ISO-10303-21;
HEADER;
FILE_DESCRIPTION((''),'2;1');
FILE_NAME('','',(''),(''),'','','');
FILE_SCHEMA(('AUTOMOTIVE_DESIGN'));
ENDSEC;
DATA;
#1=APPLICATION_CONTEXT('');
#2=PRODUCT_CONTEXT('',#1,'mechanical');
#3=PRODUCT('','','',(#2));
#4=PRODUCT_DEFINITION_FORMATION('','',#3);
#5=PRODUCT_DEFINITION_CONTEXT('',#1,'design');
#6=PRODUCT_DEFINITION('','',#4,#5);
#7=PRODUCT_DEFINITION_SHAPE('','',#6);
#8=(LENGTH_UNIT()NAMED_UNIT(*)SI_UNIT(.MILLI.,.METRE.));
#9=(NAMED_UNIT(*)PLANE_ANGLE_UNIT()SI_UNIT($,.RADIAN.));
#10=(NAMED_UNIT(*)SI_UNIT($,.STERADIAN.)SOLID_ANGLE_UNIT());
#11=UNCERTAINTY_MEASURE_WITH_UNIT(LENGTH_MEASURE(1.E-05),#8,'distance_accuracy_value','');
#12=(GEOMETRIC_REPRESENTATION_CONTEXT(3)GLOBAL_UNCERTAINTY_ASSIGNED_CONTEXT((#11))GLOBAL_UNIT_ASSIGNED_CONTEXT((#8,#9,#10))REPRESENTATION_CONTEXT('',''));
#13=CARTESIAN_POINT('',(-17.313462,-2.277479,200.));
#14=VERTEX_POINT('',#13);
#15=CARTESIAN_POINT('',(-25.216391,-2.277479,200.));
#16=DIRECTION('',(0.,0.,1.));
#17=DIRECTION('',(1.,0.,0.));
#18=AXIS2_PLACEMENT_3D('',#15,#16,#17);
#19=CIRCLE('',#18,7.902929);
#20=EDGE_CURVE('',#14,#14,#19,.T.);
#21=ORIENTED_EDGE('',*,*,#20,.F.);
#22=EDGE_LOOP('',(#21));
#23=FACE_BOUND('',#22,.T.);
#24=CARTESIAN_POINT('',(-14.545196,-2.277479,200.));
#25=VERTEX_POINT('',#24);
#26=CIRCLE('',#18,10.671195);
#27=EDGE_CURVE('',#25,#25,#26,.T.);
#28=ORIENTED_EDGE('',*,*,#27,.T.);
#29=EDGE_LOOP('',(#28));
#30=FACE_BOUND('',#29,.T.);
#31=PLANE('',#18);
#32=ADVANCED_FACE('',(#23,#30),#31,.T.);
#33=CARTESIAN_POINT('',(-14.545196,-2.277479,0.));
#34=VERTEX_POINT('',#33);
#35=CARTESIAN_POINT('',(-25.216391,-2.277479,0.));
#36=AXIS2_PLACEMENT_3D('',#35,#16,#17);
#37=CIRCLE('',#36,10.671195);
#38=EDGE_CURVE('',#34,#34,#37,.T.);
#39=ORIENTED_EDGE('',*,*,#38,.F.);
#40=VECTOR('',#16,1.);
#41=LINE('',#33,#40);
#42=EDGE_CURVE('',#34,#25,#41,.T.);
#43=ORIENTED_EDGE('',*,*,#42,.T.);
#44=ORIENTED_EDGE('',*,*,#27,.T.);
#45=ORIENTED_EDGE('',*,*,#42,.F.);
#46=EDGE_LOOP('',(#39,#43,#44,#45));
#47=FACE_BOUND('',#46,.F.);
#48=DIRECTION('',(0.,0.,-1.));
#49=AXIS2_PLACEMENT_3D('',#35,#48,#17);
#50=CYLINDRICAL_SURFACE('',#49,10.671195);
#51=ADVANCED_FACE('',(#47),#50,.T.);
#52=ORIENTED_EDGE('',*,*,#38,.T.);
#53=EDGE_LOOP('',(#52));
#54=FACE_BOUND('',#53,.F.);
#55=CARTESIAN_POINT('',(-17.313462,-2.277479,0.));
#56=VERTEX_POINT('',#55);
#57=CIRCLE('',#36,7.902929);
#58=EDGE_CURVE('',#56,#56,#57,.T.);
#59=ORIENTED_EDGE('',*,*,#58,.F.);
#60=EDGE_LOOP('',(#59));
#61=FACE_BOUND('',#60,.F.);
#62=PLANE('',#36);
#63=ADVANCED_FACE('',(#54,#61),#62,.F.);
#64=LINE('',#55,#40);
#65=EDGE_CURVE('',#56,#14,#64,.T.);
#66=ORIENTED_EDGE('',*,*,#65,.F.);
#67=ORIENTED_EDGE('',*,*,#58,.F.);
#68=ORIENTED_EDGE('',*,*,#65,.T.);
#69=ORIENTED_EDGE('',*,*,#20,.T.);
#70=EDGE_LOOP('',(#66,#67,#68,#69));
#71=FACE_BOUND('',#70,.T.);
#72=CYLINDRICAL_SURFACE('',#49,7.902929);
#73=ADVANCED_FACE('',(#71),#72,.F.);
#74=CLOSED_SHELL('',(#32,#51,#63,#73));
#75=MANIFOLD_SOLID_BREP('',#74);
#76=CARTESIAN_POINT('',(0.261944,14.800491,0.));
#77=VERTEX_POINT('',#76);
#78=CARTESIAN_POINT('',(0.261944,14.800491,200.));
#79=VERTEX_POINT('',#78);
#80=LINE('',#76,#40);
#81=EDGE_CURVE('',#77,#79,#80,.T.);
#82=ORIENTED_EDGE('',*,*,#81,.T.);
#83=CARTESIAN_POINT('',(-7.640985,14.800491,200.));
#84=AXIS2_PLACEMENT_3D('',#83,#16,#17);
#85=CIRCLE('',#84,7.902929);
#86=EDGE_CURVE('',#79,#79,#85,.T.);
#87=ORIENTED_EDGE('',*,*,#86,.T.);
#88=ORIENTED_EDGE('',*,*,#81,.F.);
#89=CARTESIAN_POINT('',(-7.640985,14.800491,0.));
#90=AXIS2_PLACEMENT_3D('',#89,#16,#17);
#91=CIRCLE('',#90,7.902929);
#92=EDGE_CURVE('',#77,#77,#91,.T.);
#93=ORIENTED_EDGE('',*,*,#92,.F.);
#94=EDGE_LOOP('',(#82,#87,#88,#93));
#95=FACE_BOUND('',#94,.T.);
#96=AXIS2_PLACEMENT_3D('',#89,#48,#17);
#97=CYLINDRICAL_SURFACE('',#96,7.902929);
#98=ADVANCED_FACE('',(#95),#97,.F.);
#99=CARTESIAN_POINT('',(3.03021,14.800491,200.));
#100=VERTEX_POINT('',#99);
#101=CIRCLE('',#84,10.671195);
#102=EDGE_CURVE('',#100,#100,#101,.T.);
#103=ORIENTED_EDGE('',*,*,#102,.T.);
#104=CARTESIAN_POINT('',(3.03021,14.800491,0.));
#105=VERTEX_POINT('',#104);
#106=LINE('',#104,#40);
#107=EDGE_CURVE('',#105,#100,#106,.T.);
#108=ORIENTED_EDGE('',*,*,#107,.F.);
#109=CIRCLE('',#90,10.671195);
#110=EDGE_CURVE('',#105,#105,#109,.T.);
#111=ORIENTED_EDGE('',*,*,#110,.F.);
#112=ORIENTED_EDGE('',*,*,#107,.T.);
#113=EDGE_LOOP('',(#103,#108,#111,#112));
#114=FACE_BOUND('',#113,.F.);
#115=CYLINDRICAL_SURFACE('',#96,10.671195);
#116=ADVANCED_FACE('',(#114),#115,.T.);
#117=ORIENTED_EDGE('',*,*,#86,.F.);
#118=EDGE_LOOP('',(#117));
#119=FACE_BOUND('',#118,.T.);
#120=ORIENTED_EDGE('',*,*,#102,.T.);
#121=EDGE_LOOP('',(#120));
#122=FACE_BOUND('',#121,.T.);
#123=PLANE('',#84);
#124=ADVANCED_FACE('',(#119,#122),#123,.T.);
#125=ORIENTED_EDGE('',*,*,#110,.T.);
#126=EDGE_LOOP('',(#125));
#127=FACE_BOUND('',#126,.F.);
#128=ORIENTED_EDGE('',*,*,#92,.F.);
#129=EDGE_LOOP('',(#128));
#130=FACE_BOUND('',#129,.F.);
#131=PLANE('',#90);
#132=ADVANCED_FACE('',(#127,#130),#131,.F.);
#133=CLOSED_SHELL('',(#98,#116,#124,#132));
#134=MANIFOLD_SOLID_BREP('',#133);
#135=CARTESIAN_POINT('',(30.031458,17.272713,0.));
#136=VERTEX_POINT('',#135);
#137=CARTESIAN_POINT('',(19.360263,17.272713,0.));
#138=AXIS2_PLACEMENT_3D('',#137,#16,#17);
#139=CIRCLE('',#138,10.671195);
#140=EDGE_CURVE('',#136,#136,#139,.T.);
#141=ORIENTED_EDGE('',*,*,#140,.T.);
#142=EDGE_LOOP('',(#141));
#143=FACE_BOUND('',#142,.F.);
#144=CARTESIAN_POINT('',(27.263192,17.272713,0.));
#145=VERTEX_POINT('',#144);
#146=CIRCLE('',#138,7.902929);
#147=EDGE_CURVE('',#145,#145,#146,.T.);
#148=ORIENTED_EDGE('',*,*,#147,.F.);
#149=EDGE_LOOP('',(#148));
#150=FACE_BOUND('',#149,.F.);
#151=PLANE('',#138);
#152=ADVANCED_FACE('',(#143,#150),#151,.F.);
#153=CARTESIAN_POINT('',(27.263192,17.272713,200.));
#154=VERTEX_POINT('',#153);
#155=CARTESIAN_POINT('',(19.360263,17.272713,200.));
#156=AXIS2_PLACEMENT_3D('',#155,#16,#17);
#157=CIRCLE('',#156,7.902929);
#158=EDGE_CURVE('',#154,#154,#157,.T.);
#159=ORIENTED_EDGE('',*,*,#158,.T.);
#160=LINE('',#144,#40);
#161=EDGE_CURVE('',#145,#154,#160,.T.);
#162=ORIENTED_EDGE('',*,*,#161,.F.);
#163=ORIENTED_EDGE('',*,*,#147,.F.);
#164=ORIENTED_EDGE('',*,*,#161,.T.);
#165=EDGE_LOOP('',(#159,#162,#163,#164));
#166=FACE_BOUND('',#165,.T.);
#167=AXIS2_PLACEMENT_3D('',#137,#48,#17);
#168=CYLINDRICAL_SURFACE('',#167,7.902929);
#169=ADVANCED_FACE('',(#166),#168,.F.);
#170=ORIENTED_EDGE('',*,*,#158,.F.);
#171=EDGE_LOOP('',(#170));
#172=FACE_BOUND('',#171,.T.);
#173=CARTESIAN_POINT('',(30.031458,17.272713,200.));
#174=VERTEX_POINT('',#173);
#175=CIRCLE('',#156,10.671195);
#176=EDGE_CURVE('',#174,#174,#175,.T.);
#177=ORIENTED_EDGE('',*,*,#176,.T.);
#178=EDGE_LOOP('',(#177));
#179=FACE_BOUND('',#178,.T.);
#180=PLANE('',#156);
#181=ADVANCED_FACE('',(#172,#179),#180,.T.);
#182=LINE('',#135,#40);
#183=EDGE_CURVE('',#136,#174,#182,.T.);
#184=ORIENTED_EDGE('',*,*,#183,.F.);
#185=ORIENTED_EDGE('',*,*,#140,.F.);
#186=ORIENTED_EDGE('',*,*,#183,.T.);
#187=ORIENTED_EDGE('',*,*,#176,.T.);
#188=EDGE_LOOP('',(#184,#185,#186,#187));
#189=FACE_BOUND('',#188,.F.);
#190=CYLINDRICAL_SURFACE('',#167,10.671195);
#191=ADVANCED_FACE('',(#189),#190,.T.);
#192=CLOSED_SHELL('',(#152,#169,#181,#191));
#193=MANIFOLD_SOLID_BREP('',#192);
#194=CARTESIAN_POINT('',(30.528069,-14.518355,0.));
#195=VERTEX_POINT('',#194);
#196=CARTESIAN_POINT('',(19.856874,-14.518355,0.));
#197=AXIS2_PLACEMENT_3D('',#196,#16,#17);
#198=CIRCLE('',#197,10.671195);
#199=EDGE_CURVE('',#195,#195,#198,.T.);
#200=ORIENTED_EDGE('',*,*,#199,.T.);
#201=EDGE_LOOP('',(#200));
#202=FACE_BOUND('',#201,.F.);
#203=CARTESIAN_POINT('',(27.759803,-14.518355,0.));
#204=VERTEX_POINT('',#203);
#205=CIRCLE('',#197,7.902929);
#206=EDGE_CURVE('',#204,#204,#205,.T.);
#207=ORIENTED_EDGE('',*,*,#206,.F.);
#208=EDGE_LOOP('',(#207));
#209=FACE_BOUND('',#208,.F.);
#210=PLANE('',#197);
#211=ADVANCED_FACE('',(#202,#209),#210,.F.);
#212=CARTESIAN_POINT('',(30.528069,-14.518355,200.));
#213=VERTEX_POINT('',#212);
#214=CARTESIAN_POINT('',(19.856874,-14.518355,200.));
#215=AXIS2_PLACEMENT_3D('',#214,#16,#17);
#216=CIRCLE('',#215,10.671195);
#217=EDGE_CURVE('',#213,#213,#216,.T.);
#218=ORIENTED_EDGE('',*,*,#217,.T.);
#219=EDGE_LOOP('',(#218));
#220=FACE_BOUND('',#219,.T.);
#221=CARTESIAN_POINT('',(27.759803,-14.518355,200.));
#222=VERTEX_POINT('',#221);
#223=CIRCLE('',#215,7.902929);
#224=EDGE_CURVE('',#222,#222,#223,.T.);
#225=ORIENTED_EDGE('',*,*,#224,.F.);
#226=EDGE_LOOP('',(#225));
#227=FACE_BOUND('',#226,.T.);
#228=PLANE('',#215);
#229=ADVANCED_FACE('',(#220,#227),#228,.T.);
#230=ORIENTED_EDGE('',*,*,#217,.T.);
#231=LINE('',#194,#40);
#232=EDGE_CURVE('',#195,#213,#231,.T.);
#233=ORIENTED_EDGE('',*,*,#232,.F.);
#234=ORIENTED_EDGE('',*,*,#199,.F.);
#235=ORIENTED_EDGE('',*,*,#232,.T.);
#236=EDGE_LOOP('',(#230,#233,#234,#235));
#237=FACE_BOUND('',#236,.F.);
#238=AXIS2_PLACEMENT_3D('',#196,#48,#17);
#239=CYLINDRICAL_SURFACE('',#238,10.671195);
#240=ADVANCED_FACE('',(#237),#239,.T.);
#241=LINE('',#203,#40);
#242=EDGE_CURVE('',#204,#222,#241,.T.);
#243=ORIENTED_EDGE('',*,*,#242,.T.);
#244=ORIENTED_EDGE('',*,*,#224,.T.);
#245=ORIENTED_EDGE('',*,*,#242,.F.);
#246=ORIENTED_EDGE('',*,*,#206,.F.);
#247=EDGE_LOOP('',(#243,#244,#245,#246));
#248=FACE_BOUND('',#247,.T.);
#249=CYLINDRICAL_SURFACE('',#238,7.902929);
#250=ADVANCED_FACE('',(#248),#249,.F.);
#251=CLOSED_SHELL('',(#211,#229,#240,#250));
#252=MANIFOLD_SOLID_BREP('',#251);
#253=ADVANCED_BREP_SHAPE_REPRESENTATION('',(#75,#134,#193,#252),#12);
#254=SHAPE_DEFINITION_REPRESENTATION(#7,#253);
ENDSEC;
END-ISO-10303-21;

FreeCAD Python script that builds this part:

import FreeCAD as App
import Part
import Sketcher

doc = App.newDocument("Part")
body = doc.addObject("PartDesign::Body", "Body")

# Sketch on XY plane
sketch1 = doc.addObject("Sketcher::SketchObject", "Sketch")
body.addObject(sketch1)
sketch1.AttachmentSupport = (doc.XY_Plane, [""])
sketch1.MapMode = "FlatFace"
sketch1.addGeometry([
    Part.Circle(App.Vector(19, 17, 0), App.Vector(0, 0, 1), 11),
    Part.Circle(App.Vector(19, 17, 0), App.Vector(0, 0, 1), 8),
], False)
sketch1.addConstraint([
    Sketcher.Constraint("Coincident", 1, 3, 0, 3),
    Sketcher.Constraint("Diameter", 0, 21.34239),
    Sketcher.Constraint("Diameter", 1, 15.805858),
    Sketcher.Constraint("DistanceX", -1, 1, 0, 3, 19.360263),
    Sketcher.Constraint("DistanceY", -1, 1, 0, 3, 17.272713),
])
pad1 = doc.addObject("PartDesign::Pad", "Pad")
body.addObject(pad1)
pad1.Profile = sketch1
pad1.Length = 200
body2 = doc.addObject("PartDesign::Body", "Body001")

# Sketch on XY plane
sketch2 = doc.addObject("Sketcher::SketchObject", "Sketch001")
body2.addObject(sketch2)
sketch2.AttachmentSupport = (doc.getObject("XY_Plane001"), [""])
sketch2.MapMode = "FlatFace"
sketch2.addGeometry([
    Part.Circle(App.Vector(20, -15, 0), App.Vector(0, 0, 1), 11),
    Part.Circle(App.Vector(20, -15, 0), App.Vector(0, 0, 1), 8),
], False)
sketch2.addConstraint([
    Sketcher.Constraint("Coincident", 1, 3, 0, 3),
    Sketcher.Constraint("Diameter", 0, 21.34239),
    Sketcher.Constraint("Diameter", 1, 15.805858),
    Sketcher.Constraint("DistanceX", -1, 1, 0, 3, 19.856874),
    Sketcher.Constraint("DistanceY", 0, 3, -1, 1, 14.518355),
])
pad2 = doc.addObject("PartDesign::Pad", "Pad001")
body2.addObject(pad2)
pad2.Profile = sketch2
pad2.Length = 200
body3 = doc.addObject("PartDesign::Body", "Body002")

# Sketch on XY plane
sketch3 = doc.addObject("Sketcher::SketchObject", "Sketch002")
body3.addObject(sketch3)
sketch3.AttachmentSupport = (doc.getObject("XY_Plane002"), [""])
sketch3.MapMode = "FlatFace"
sketch3.addGeometry([
    Part.Circle(App.Vector(-25, -2, 0), App.Vector(0, 0, 1), 11),
    Part.Circle(App.Vector(-25, -2, 0), App.Vector(0, 0, 1), 8),
], False)
sketch3.addConstraint([
    Sketcher.Constraint("Coincident", 1, 3, 0, 3),
    Sketcher.Constraint("Diameter", 0, 21.34239),
    Sketcher.Constraint("Diameter", 1, 15.805858),
    Sketcher.Constraint("DistanceX", 0, 3, -1, 1, 25.216391),
    Sketcher.Constraint("DistanceY", 0, 3, -1, 1, 2.277479),
])
pad3 = doc.addObject("PartDesign::Pad", "Pad002")
body3.addObject(pad3)
pad3.Profile = sketch3
pad3.Length = 200
body4 = doc.addObject("PartDesign::Body", "Body003")

# Sketch on XY plane
sketch4 = doc.addObject("Sketcher::SketchObject", "Sketch003")
body4.addObject(sketch4)
sketch4.AttachmentSupport = (doc.getObject("XY_Plane003"), [""])
sketch4.MapMode = "FlatFace"
sketch4.addGeometry([
    Part.Circle(App.Vector(-8, 15, 0), App.Vector(0, 0, 1), 11),
    Part.Circle(App.Vector(-8, 15, 0), App.Vector(0, 0, 1), 8),
], False)
sketch4.addConstraint([
    Sketcher.Constraint("Coincident", 1, 3, 0, 3),
    Sketcher.Constraint("Diameter", 0, 21.34239),
    Sketcher.Constraint("Diameter", 1, 15.805858),
    Sketcher.Constraint("DistanceY", -1, 1, 0, 3, 14.800491),
    Sketcher.Constraint("DistanceX", 0, 3, -1, 1, 7.640985),
])
pad4 = doc.addObject("PartDesign::Pad", "Pad003")
body4.addObject(pad4)
pad4.Profile = sketch4
pad4.Length = 200

doc.recompute()
